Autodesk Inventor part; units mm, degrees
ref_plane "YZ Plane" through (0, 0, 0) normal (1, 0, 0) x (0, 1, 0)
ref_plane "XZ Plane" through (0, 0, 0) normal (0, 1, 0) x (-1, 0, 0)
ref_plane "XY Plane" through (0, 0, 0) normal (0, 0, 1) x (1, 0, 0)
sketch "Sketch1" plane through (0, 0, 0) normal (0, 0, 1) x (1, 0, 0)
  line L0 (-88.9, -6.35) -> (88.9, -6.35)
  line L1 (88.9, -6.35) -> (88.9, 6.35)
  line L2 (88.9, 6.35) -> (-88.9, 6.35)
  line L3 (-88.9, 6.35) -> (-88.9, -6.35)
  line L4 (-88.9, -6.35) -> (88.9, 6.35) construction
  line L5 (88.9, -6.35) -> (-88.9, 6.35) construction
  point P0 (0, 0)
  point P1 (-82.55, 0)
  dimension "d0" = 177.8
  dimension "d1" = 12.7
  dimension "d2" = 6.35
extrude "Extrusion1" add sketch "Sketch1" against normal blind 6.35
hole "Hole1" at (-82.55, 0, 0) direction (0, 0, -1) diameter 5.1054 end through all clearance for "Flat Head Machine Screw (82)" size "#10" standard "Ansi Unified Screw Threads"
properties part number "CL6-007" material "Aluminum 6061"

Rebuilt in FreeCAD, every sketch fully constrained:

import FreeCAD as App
import Part
import Sketcher
Q = App.Units.Quantity

doc = App.newDocument("Part")
body = doc.addObject("PartDesign::Body", "Body")

# Sketch on XY plane
sketch1 = body.newObject("Sketcher::SketchObject", "Sketch")
sketch1.AttachmentSupport = (doc.getObject("XY_Plane"), [""])
sketch1.MapMode = "FlatFace"
sketch1.addGeometry([
    Part.LineSegment(App.Vector(-88.9, 6.35, 0), App.Vector(-88.9, -6.35, 0)),
    Part.LineSegment(App.Vector(-88.9, -6.35, 0), App.Vector(88.9, -6.35, 0)),
    Part.LineSegment(App.Vector(88.9, -6.35, 0), App.Vector(88.9, 6.35, 0)),
    Part.LineSegment(App.Vector(88.9, 6.35, 0), App.Vector(-88.9, 6.35, 0)),
], False)
sketch1.addConstraint([
    Sketcher.Constraint("Coincident", 0, 2, 1, 1),
    Sketcher.Constraint("Coincident", 1, 2, 2, 1),
    Sketcher.Constraint("Coincident", 2, 2, 3, 1),
    Sketcher.Constraint("Coincident", 3, 2, 0, 1),
    Sketcher.Constraint("Vertical", 0),
    Sketcher.Constraint("Horizontal", 1),
    Sketcher.Constraint("Vertical", 2),
    Sketcher.Constraint("Horizontal", 3),
    Sketcher.Constraint("Symmetric", 0, 2, 2, 2, -1, 1),
    Sketcher.Constraint("DistanceX", 1, 1, 1, 2, Q("7 in")),
    Sketcher.Constraint("DistanceY", 0, 2, 0, 1, Q("0.5 in")),
])
pad1 = body.newObject("PartDesign::Pad", "Pad")
pad1.Profile = sketch1
pad1.Length = Q("0.25 in")
pad1.Reversed = True

# Sketch on XY plane
sketch2 = body.newObject("Sketcher::SketchObject", "Sketch001")
sketch2.AttachmentSupport = (doc.getObject("XY_Plane"), [""])
sketch2.MapMode = "FlatFace"
sketch2.addGeometry(Part.Circle(App.Vector(-82.55, 0, 0), App.Vector(0, 0, 1), 2.5527), False)
sketch2.addConstraint([
    Sketcher.Constraint("PointOnObject", 0, 3, -1),
    Sketcher.Constraint("Diameter", 0, Q("0.201 in")),
    Sketcher.Constraint("DistanceX", 0, 3, -1, 1, Q("3.25 in")),
])
doc.recompute()
hole = body.newObject("PartDesign::Hole", "Hole")
hole.Profile = sketch2
hole.ThreadType = "None"
hole.Diameter = Q("0.201 in")
hole.DepthType = "ThroughAll"

doc.recompute()
